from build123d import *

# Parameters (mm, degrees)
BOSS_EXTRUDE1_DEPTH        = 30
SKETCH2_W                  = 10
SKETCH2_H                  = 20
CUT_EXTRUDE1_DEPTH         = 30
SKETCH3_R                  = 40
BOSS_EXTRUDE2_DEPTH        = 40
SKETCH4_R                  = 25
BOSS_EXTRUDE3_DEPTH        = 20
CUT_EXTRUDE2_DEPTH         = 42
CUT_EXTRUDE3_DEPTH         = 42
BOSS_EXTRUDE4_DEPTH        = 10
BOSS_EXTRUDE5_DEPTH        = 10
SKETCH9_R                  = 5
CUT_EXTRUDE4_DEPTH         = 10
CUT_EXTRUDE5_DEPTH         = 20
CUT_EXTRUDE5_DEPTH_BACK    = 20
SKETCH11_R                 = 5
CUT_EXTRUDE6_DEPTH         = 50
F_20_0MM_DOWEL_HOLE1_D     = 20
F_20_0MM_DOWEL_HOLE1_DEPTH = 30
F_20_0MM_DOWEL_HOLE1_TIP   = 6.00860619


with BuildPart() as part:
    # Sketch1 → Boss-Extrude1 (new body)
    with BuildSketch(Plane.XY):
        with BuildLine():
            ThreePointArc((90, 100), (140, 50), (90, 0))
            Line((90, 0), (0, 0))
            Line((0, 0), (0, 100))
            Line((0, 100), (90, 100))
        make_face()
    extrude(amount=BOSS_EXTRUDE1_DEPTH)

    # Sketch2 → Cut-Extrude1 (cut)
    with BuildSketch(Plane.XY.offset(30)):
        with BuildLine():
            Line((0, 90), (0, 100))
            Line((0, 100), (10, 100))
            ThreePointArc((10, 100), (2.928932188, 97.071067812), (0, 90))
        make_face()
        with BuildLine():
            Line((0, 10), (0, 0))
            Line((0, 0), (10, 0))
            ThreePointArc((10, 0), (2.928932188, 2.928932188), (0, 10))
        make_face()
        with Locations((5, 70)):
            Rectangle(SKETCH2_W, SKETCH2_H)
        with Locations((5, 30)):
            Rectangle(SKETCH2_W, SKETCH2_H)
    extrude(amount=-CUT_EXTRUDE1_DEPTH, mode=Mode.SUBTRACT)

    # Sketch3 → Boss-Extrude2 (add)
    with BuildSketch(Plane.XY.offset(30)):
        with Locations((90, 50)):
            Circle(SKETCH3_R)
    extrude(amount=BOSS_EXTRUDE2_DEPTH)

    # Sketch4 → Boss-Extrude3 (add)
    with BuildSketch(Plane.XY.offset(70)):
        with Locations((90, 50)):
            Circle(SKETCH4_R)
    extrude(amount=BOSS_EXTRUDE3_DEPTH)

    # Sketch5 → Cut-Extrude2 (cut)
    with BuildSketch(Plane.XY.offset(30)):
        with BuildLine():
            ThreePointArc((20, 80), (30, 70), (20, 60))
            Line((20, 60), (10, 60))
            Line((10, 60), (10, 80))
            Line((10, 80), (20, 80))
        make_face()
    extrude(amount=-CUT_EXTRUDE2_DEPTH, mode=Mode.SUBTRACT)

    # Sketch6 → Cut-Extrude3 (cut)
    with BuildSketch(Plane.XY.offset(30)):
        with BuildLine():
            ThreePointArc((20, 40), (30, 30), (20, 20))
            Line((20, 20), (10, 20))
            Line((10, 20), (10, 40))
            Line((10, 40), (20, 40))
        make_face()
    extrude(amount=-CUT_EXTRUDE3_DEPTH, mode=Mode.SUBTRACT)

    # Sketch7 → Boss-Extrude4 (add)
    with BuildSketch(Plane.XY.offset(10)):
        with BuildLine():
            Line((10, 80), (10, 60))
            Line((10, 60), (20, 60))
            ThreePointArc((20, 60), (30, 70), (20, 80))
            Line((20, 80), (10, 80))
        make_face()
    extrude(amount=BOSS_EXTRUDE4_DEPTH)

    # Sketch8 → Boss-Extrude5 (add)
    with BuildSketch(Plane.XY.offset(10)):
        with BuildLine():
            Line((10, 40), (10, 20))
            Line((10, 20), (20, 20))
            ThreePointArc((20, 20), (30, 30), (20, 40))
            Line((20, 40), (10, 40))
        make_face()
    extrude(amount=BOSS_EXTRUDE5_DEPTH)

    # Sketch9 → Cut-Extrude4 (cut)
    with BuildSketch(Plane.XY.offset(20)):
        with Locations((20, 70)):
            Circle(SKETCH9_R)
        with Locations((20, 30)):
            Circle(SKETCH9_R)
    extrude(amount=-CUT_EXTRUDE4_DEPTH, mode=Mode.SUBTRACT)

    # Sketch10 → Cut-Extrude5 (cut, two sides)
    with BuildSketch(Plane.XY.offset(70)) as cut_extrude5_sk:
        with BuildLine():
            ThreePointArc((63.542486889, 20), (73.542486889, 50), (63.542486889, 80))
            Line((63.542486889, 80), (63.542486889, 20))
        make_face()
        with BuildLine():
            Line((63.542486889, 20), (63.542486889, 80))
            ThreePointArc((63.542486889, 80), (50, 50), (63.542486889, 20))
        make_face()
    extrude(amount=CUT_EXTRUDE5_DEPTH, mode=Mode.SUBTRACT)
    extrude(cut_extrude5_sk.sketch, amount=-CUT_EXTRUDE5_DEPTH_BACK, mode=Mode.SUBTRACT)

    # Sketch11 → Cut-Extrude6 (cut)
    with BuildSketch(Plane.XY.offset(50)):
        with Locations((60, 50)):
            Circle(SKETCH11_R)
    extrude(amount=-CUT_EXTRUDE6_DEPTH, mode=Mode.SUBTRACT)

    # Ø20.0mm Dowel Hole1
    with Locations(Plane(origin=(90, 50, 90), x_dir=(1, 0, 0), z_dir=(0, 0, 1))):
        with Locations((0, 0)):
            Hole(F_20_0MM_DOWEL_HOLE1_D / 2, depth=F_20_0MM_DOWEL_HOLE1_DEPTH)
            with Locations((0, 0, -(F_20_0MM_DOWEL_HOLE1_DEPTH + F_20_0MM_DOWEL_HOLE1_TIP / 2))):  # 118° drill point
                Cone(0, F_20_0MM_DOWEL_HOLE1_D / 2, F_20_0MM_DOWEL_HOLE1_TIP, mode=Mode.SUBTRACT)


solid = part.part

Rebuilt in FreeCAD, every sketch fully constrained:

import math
import FreeCAD as App
import Part
import Sketcher
Q = App.Units.Quantity


def add_polygon(sketch, points):
    """Adds a closed chain of lines whose ends are joined by coincident constraints."""
    first, n = sketch.GeometryCount, len(points)
    for a, b in zip(points, points[1:] + points[:1]):
        sketch.addGeometry(Part.LineSegment(App.Vector(*a, 0), App.Vector(*b, 0)), False)
    for i in range(n):
        sketch.addConstraint(Sketcher.Constraint("Coincident", first + i, 2, first + (i + 1) % n, 1))

doc = App.newDocument("Part")
params = doc.addObject("Spreadsheet::Sheet", "Params")
for row, (alias, value) in enumerate([
    ("sketch1_radius", "50 mm"),
    ("sketch1_width", "90 mm"),
    ("pad1_length", "30 mm"),
    ("sketch2_radius", "10 mm"),
    ("sketch2_height", "20 mm"),
    ("pocket1_length", "30 mm"),
    ("sketch3_diameter", "80 mm"),
    ("pad2_length", "40 mm"),
    ("sketch4_diameter", "50 mm"),
    ("pad3_length", "20 mm"),
    ("sketch5_radius", "10 mm"),
    ("sketch5_width", "10 mm"),
    ("pocket2_length", "42 mm"),
    ("sketch6_radius", "10 mm"),
    ("sketch6_width", "10 mm"),
    ("pocket3_length", "42 mm"),
    ("sketch7_radius", "10 mm"),
    ("sketch7_width", "10 mm"),
    ("pad4_length", "10 mm"),
    ("sketch8_radius", "10 mm"),
    ("sketch8_width", "10 mm"),
    ("pad5_length", "10 mm"),
    ("sketch9_diameter", "10 mm"),
    ("pocket4_length", "10 mm"),
    ("sketch10_radius", "50 mm"),
    ("sketch10_radius2", "40 mm"),
    ("pocket5_length", "20 mm"),
    ("pocket5_length2", "20 mm"),
    ("sketch11_diameter", "10 mm"),
    ("pocket6_length", "50 mm"),
    ("sketch12_diameter", "20 mm"),
    ("hole_diameter", "20 mm"),
    ("hole_depth", "30 mm"),
], start=1):
    params.set(f"A{row}", alias)
    params.set(f"B{row}", "=" + value)
    params.setAlias(f"B{row}", alias)

body = doc.addObject("PartDesign::Body", "Body")

sketch1 = body.newObject("Sketcher::SketchObject", "Sketch")
sketch1.AttachmentSupport = (doc.getObject("XY_Plane"), [""])
sketch1.MapMode = "FlatFace"
sketch1.addGeometry([
    Part.ArcOfCircle(Part.Circle(App.Vector(90, 50, 0), App.Vector(0, 0, 1), 50), math.radians(-90), math.radians(90)),
    Part.LineSegment(App.Vector(90, 100, 0), App.Vector(0, 100, 0)),
    Part.LineSegment(App.Vector(0, 100, 0), App.Vector(0, 0, 0)),
    Part.LineSegment(App.Vector(0, 0, 0), App.Vector(90, 0, 0)),
], False)
sketch1.addConstraint([
    Sketcher.Constraint("Tangent", 0, 2, 1, 1),
    Sketcher.Constraint("Coincident", 1, 2, 2, 1),
    Sketcher.Constraint("Coincident", 2, 2, 3, 1),
    Sketcher.Constraint("Tangent", 3, 2, 0, 1),
    Sketcher.Constraint("Horizontal", 1),
    Sketcher.Constraint("Vertical", 2),
    Sketcher.Constraint("Horizontal", 3),
    Sketcher.Constraint("Coincident", 2, 2, -1, 1),
    Sketcher.Constraint("Radius", 0, Q("50 mm")),
    Sketcher.Constraint("DistanceX", 1, 2, 1, 1, Q("90 mm")),
])
sketch1.setExpression("Constraints[8]", "Params.sketch1_radius")
sketch1.setExpression("Constraints[9]", "Params.sketch1_width")
pad1 = body.newObject("PartDesign::Pad", "Pad")
pad1.Profile = sketch1
pad1.setExpression("Length", "Params.pad1_length")

sketch2 = body.newObject("Sketcher::SketchObject", "Sketch001")
sketch2.AttachmentSupport = (doc.getObject("XY_Plane"), [""])
sketch2.MapMode = "FlatFace"
sketch2.AttachmentOffset = App.Placement(App.Vector(0, 0, 30), App.Rotation())
sketch2.addGeometry(Part.LineSegment(App.Vector(0, 100, 0), App.Vector(0, 90, 0)), False)
sketch2.addGeometry(Part.ArcOfCircle(Part.Circle(App.Vector(10, 90, 0), App.Vector(0, 0, 1), 10), math.radians(90), math.radians(180)), False)
sketch2.addGeometry(Part.LineSegment(App.Vector(10, 100, 0), App.Vector(0, 100, 0)), False)
sketch2.addGeometry(Part.LineSegment(App.Vector(0, 10, 0), App.Vector(0, 0, 0)), False)
sketch2.addGeometry(Part.LineSegment(App.Vector(0, 0, 0), App.Vector(10, 0, 0)), False)
sketch2.addGeometry(Part.ArcOfCircle(Part.Circle(App.Vector(10, 10, 0), App.Vector(0, 0, 1), 10), math.radians(180), math.radians(270)), False)
add_polygon(sketch2, [(0, 80), (0, 60), (10, 60), (10, 80)])
add_polygon(sketch2, [(0, 40), (0, 20), (10, 20), (10, 40)])
sketch2.addConstraint([
    Sketcher.Constraint("Tangent", 0, 2, 1, 2),
    Sketcher.Constraint("Tangent", 1, 1, 2, 1),
    Sketcher.Constraint("Coincident", 2, 2, 0, 1),
    Sketcher.Constraint("Coincident", 3, 2, 4, 1),
    Sketcher.Constraint("Tangent", 4, 2, 5, 2),
    Sketcher.Constraint("Tangent", 5, 1, 3, 1),
    Sketcher.Constraint("Vertical", 0),
    Sketcher.Constraint("Horizontal", 2),
    Sketcher.Constraint("Vertical", 3),
    Sketcher.Constraint("Horizontal", 4),
    Sketcher.Constraint("Vertical", 6),
    Sketcher.Constraint("Horizontal", 7),
    Sketcher.Constraint("Vertical", 8),
    Sketcher.Constraint("Horizontal", 9),
    Sketcher.Constraint("Vertical", 10),
    Sketcher.Constraint("Horizontal", 11),
    Sketcher.Constraint("Vertical", 12),
    Sketcher.Constraint("Horizontal", 13),
    Sketcher.Constraint("Coincident", 3, 2, -1, 1),
    Sketcher.Constraint("Equal", 1, 5),
    Sketcher.Constraint("PointOnObject", 0, 2, -2),
    Sketcher.Constraint("PointOnObject", 6, 2, -2),
    Sketcher.Constraint("PointOnObject", 10, 2, -2),
    Sketcher.Constraint("Vertical", 4, 2, 7, 2),
    Sketcher.Constraint("Vertical", 8, 2, 11, 2),
    Sketcher.Constraint("Equal", 8, 10),
    Sketcher.Constraint("Radius", 1, Q("10 mm")),
    Sketcher.Constraint("DistanceY", 6, 2, 6, 1, Q("20 mm")),
    Sketcher.Constraint("DistanceY", -1, 1, 1, 3, Q("90 mm")),
    Sketcher.Constraint("DistanceY", -1, 1, 6, 2, Q("60 mm")),
    Sketcher.Constraint("DistanceY", -1, 1, 10, 2, Q("20 mm")),
])
sketch2.setExpression("Constraints[34]", "Params.sketch2_radius")
sketch2.setExpression("Constraints[35]", "Params.sketch2_height")
pocket1 = body.newObject("PartDesign::Pocket", "Pocket")
pocket1.Profile = sketch2
pocket1.setExpression("Length", "Params.pocket1_length")

sketch3 = body.newObject("Sketcher::SketchObject", "Sketch002")
sketch3.AttachmentSupport = (doc.getObject("XY_Plane"), [""])
sketch3.MapMode = "FlatFace"
sketch3.AttachmentOffset = App.Placement(App.Vector(0, 0, 30), App.Rotation())
sketch3.addGeometry(Part.Circle(App.Vector(90, 50, 0), App.Vector(0, 0, 1), 40), False)
sketch3.addConstraint([
    Sketcher.Constraint("Diameter", 0, Q("80 mm")),
    Sketcher.Constraint("DistanceX", -1, 1, 0, 3, Q("90 mm")),
    Sketcher.Constraint("DistanceY", -1, 1, 0, 3, Q("50 mm")),
])
sketch3.setExpression("Constraints[0]", "Params.sketch3_diameter")
pad2 = body.newObject("PartDesign::Pad", "Pad001")
pad2.Profile = sketch3
pad2.setExpression("Length", "Params.pad2_length")

sketch4 = body.newObject("Sketcher::SketchObject", "Sketch003")
sketch4.AttachmentSupport = (doc.getObject("XY_Plane"), [""])
sketch4.MapMode = "FlatFace"
sketch4.AttachmentOffset = App.Placement(App.Vector(0, 0, 70), App.Rotation())
sketch4.addGeometry(Part.Circle(App.Vector(90, 50, 0), App.Vector(0, 0, 1), 25), False)
sketch4.addConstraint([
    Sketcher.Constraint("Diameter", 0, Q("50 mm")),
    Sketcher.Constraint("DistanceX", -1, 1, 0, 3, Q("90 mm")),
    Sketcher.Constraint("DistanceY", -1, 1, 0, 3, Q("50 mm")),
])
sketch4.setExpression("Constraints[0]", "Params.sketch4_diameter")
pad3 = body.newObject("PartDesign::Pad", "Pad002")
pad3.Profile = sketch4
pad3.setExpression("Length", "Params.pad3_length")

sketch5 = body.newObject("Sketcher::SketchObject", "Sketch004")
sketch5.AttachmentSupport = (doc.getObject("XY_Plane"), [""])
sketch5.MapMode = "FlatFace"
sketch5.AttachmentOffset = App.Placement(App.Vector(0, 0, 30), App.Rotation())
sketch5.addGeometry([
    Part.ArcOfCircle(Part.Circle(App.Vector(20, 70, 0), App.Vector(0, 0, 1), 10), math.radians(-90), math.radians(90)),
    Part.LineSegment(App.Vector(20, 80, 0), App.Vector(10, 80, 0)),
    Part.LineSegment(App.Vector(10, 80, 0), App.Vector(10, 60, 0)),
    Part.LineSegment(App.Vector(10, 60, 0), App.Vector(20, 60, 0)),
], False)
sketch5.addConstraint([
    Sketcher.Constraint("Tangent", 0, 2, 1, 1),
    Sketcher.Constraint("Coincident", 1, 2, 2, 1),
    Sketcher.Constraint("Coincident", 2, 2, 3, 1),
    Sketcher.Constraint("Tangent", 3, 2, 0, 1),
    Sketcher.Constraint("Horizontal", 1),
    Sketcher.Constraint("Vertical", 2),
    Sketcher.Constraint("Horizontal", 3),
    Sketcher.Constraint("Radius", 0, Q("10 mm")),
    Sketcher.Constraint("DistanceX", 1, 2, 1, 1, Q("10 mm")),
    Sketcher.Constraint("DistanceX", -1, 1, 0, 3, Q("20 mm")),
    Sketcher.Constraint("DistanceY", -1, 1, 0, 3, Q("70 mm")),
])
sketch5.setExpression("Constraints[7]", "Params.sketch5_radius")
sketch5.setExpression("Constraints[8]", "Params.sketch5_width")
pocket2 = body.newObject("PartDesign::Pocket", "Pocket001")
pocket2.Profile = sketch5
pocket2.setExpression("Length", "Params.pocket2_length")

sketch6 = body.newObject("Sketcher::SketchObject", "Sketch005")
sketch6.AttachmentSupport = (doc.getObject("XY_Plane"), [""])
sketch6.MapMode = "FlatFace"
sketch6.AttachmentOffset = App.Placement(App.Vector(0, 0, 30), App.Rotation())
sketch6.addGeometry([
    Part.ArcOfCircle(Part.Circle(App.Vector(20, 30, 0), App.Vector(0, 0, 1), 10), math.radians(-90), math.radians(90)),
    Part.LineSegment(App.Vector(20, 40, 0), App.Vector(10, 40, 0)),
    Part.LineSegment(App.Vector(10, 40, 0), App.Vector(10, 20, 0)),
    Part.LineSegment(App.Vector(10, 20, 0), App.Vector(20, 20, 0)),
], False)
sketch6.addConstraint([
    Sketcher.Constraint("Tangent", 0, 2, 1, 1),
    Sketcher.Constraint("Coincident", 1, 2, 2, 1),
    Sketcher.Constraint("Coincident", 2, 2, 3, 1),
    Sketcher.Constraint("Tangent", 3, 2, 0, 1),
    Sketcher.Constraint("Horizontal", 1),
    Sketcher.Constraint("Vertical", 2),
    Sketcher.Constraint("Horizontal", 3),
    Sketcher.Constraint("Radius", 0, Q("10 mm")),
    Sketcher.Constraint("DistanceX", 1, 2, 1, 1, Q("10 mm")),
    Sketcher.Constraint("DistanceX", -1, 1, 0, 3, Q("20 mm")),
    Sketcher.Constraint("DistanceY", -1, 1, 0, 3, Q("30 mm")),
])
sketch6.setExpression("Constraints[7]", "Params.sketch6_radius")
sketch6.setExpression("Constraints[8]", "Params.sketch6_width")
pocket3 = body.newObject("PartDesign::Pocket", "Pocket002")
pocket3.Profile = sketch6
pocket3.setExpression("Length", "Params.pocket3_length")

sketch7 = body.newObject("Sketcher::SketchObject", "Sketch006")
sketch7.AttachmentSupport = (doc.getObject("XY_Plane"), [""])
sketch7.MapMode = "FlatFace"
sketch7.AttachmentOffset = App.Placement(App.Vector(0, 0, 10), App.Rotation())
sketch7.addGeometry([
    Part.LineSegment(App.Vector(10, 80, 0), App.Vector(10, 60, 0)),
    Part.LineSegment(App.Vector(10, 60, 0), App.Vector(20, 60, 0)),
    Part.ArcOfCircle(Part.Circle(App.Vector(20, 70, 0), App.Vector(0, 0, 1), 10), math.radians(-90), math.radians(90)),
    Part.LineSegment(App.Vector(20, 80, 0), App.Vector(10, 80, 0)),
], False)
sketch7.addConstraint([
    Sketcher.Constraint("Coincident", 0, 2, 1, 1),
    Sketcher.Constraint("Tangent", 1, 2, 2, 1),
    Sketcher.Constraint("Tangent", 2, 2, 3, 1),
    Sketcher.Constraint("Coincident", 3, 2, 0, 1),
    Sketcher.Constraint("Vertical", 0),
    Sketcher.Constraint("Horizontal", 1),
    Sketcher.Constraint("Horizontal", 3),
    Sketcher.Constraint("Radius", 2, Q("10 mm")),
    Sketcher.Constraint("DistanceX", 1, 1, 1, 2, Q("10 mm")),
    Sketcher.Constraint("DistanceX", -1, 1, 2, 3, Q("20 mm")),
    Sketcher.Constraint("DistanceY", -1, 1, 2, 3, Q("70 mm")),
])
sketch7.setExpression("Constraints[7]", "Params.sketch7_radius")
sketch7.setExpression("Constraints[8]", "Params.sketch7_width")
pad4 = body.newObject("PartDesign::Pad", "Pad003")
pad4.Profile = sketch7
pad4.setExpression("Length", "Params.pad4_length")

sketch8 = body.newObject("Sketcher::SketchObject", "Sketch007")
sketch8.AttachmentSupport = (doc.getObject("XY_Plane"), [""])
sketch8.MapMode = "FlatFace"
sketch8.AttachmentOffset = App.Placement(App.Vector(0, 0, 10), App.Rotation())
sketch8.addGeometry([
    Part.LineSegment(App.Vector(10, 40, 0), App.Vector(10, 20, 0)),
    Part.LineSegment(App.Vector(10, 20, 0), App.Vector(20, 20, 0)),
    Part.ArcOfCircle(Part.Circle(App.Vector(20, 30, 0), App.Vector(0, 0, 1), 10), math.radians(-90), math.radians(90)),
    Part.LineSegment(App.Vector(20, 40, 0), App.Vector(10, 40, 0)),
], False)
sketch8.addConstraint([
    Sketcher.Constraint("Coincident", 0, 2, 1, 1),
    Sketcher.Constraint("Tangent", 1, 2, 2, 1),
    Sketcher.Constraint("Tangent", 2, 2, 3, 1),
    Sketcher.Constraint("Coincident", 3, 2, 0, 1),
    Sketcher.Constraint("Vertical", 0),
    Sketcher.Constraint("Horizontal", 1),
    Sketcher.Constraint("Horizontal", 3),
    Sketcher.Constraint("Radius", 2, Q("10 mm")),
    Sketcher.Constraint("DistanceX", 1, 1, 1, 2, Q("10 mm")),
    Sketcher.Constraint("DistanceX", -1, 1, 2, 3, Q("20 mm")),
    Sketcher.Constraint("DistanceY", -1, 1, 2, 3, Q("30 mm")),
])
sketch8.setExpression("Constraints[7]", "Params.sketch8_radius")
sketch8.setExpression("Constraints[8]", "Params.sketch8_width")
pad5 = body.newObject("PartDesign::Pad", "Pad004")
pad5.Profile = sketch8
pad5.setExpression("Length", "Params.pad5_length")

sketch9 = body.newObject("Sketcher::SketchObject", "Sketch008")
sketch9.AttachmentSupport = (doc.getObject("XY_Plane"), [""])
sketch9.MapMode = "FlatFace"
sketch9.AttachmentOffset = App.Placement(App.Vector(0, 0, 20), App.Rotation())
sketch9.addGeometry([
    Part.Circle(App.Vector(20, 70, 0), App.Vector(0, 0, 1), 5),
    Part.Circle(App.Vector(20, 30, 0), App.Vector(0, 0, 1), 5),
], False)
sketch9.addConstraint([
    Sketcher.Constraint("Equal", 0, 1),
    Sketcher.Constraint("Vertical", 0, 3, 1, 3),
    Sketcher.Constraint("Diameter", 0, Q("10 mm")),
    Sketcher.Constraint("DistanceX", -1, 1, 0, 3, Q("20 mm")),
    Sketcher.Constraint("DistanceY", -1, 1, 0, 3, Q("70 mm")),
    Sketcher.Constraint("DistanceY", -1, 1, 1, 3, Q("30 mm")),
])
sketch9.setExpression("Constraints[2]", "Params.sketch9_diameter")
pocket4 = body.newObject("PartDesign::Pocket", "Pocket003")
pocket4.Profile = sketch9
pocket4.setExpression("Length", "Params.pocket4_length")

sketch10 = body.newObject("Sketcher::SketchObject", "Sketch009")
sketch10.AttachmentSupport = (doc.getObject("XY_Plane"), [""])
sketch10.MapMode = "FlatFace"
sketch10.AttachmentOffset = App.Placement(App.Vector(0, 0, 70), App.Rotation())
sketch10.addGeometry([
    Part.ArcOfCircle(Part.Circle(App.Vector(23.542487, 50, 0), App.Vector(0, 0, 1), 50), math.radians(-36.869898), math.radians(36.869898)),
    Part.ArcOfCircle(Part.Circle(App.Vector(90, 50, 0), App.Vector(0, 0, 1), 40), math.radians(131.409622), math.radians(228.590378)),
], False)
sketch10.addConstraint([
    Sketcher.Constraint("Coincident", 0, 1, 1, 2),
    Sketcher.Constraint("Coincident", 1, 1, 0, 2),
    Sketcher.Constraint("Horizontal", 0, 3, 1, 3),
    Sketcher.Constraint("Radius", 0, Q("50 mm")),
    Sketcher.Constraint("Radius", 1, Q("40 mm")),
    Sketcher.Constraint("DistanceY", -1, 1, 0, 3, Q("50 mm")),
    Sketcher.Constraint("DistanceX", -1, 1, 1, 3, Q("90 mm")),
    Sketcher.Constraint("DistanceY", -1, 1, 0, 1, Q("20 mm")),
])
sketch10.setExpression("Constraints[3]", "Params.sketch10_radius")
sketch10.setExpression("Constraints[4]", "Params.sketch10_radius2")
pocket5 = body.newObject("PartDesign::Pocket", "Pocket004")
pocket5.Profile = sketch10
pocket5.Type = "TwoLengths"
pocket5.setExpression("Length", "Params.pocket5_length")
pocket5.setExpression("Length2", "Params.pocket5_length2")
pocket5.Reversed = True

sketch11 = body.newObject("Sketcher::SketchObject", "Sketch010")
sketch11.AttachmentSupport = (doc.getObject("XY_Plane"), [""])
sketch11.MapMode = "FlatFace"
sketch11.AttachmentOffset = App.Placement(App.Vector(0, 0, 50), App.Rotation())
sketch11.addGeometry(Part.Circle(App.Vector(60, 50, 0), App.Vector(0, 0, 1), 5), False)
sketch11.addConstraint([
    Sketcher.Constraint("Diameter", 0, Q("10 mm")),
    Sketcher.Constraint("DistanceX", -1, 1, 0, 3, Q("60 mm")),
    Sketcher.Constraint("DistanceY", -1, 1, 0, 3, Q("50 mm")),
])
sketch11.setExpression("Constraints[0]", "Params.sketch11_diameter")
pocket6 = body.newObject("PartDesign::Pocket", "Pocket005")
pocket6.Profile = sketch11
pocket6.setExpression("Length", "Params.pocket6_length")

sketch12 = body.newObject("Sketcher::SketchObject", "Sketch011")
sketch12.AttachmentSupport = (doc.getObject("XY_Plane"), [""])
sketch12.MapMode = "FlatFace"
sketch12.AttachmentOffset = App.Placement(App.Vector(0, 0, 90), App.Rotation())
sketch12.addGeometry(Part.Circle(App.Vector(90, 50, 0), App.Vector(0, 0, 1), 10), False)
sketch12.addConstraint([
    Sketcher.Constraint("Diameter", 0, Q("20 mm")),
    Sketcher.Constraint("DistanceX", -1, 1, 0, 3, Q("90 mm")),
    Sketcher.Constraint("DistanceY", -1, 1, 0, 3, Q("50 mm")),
])
sketch12.setExpression("Constraints[0]", "Params.sketch12_diameter")
doc.recompute()
hole = body.newObject("PartDesign::Hole", "Hole")
hole.Profile = sketch12
hole.ThreadType = "None"
hole.setExpression("Diameter", "Params.hole_diameter")
hole.DepthType = "Dimension"
hole.setExpression("Depth", "Params.hole_depth")
hole.DrillPoint = "Angled"
hole.DrillPointAngle = 118

doc.recompute()
